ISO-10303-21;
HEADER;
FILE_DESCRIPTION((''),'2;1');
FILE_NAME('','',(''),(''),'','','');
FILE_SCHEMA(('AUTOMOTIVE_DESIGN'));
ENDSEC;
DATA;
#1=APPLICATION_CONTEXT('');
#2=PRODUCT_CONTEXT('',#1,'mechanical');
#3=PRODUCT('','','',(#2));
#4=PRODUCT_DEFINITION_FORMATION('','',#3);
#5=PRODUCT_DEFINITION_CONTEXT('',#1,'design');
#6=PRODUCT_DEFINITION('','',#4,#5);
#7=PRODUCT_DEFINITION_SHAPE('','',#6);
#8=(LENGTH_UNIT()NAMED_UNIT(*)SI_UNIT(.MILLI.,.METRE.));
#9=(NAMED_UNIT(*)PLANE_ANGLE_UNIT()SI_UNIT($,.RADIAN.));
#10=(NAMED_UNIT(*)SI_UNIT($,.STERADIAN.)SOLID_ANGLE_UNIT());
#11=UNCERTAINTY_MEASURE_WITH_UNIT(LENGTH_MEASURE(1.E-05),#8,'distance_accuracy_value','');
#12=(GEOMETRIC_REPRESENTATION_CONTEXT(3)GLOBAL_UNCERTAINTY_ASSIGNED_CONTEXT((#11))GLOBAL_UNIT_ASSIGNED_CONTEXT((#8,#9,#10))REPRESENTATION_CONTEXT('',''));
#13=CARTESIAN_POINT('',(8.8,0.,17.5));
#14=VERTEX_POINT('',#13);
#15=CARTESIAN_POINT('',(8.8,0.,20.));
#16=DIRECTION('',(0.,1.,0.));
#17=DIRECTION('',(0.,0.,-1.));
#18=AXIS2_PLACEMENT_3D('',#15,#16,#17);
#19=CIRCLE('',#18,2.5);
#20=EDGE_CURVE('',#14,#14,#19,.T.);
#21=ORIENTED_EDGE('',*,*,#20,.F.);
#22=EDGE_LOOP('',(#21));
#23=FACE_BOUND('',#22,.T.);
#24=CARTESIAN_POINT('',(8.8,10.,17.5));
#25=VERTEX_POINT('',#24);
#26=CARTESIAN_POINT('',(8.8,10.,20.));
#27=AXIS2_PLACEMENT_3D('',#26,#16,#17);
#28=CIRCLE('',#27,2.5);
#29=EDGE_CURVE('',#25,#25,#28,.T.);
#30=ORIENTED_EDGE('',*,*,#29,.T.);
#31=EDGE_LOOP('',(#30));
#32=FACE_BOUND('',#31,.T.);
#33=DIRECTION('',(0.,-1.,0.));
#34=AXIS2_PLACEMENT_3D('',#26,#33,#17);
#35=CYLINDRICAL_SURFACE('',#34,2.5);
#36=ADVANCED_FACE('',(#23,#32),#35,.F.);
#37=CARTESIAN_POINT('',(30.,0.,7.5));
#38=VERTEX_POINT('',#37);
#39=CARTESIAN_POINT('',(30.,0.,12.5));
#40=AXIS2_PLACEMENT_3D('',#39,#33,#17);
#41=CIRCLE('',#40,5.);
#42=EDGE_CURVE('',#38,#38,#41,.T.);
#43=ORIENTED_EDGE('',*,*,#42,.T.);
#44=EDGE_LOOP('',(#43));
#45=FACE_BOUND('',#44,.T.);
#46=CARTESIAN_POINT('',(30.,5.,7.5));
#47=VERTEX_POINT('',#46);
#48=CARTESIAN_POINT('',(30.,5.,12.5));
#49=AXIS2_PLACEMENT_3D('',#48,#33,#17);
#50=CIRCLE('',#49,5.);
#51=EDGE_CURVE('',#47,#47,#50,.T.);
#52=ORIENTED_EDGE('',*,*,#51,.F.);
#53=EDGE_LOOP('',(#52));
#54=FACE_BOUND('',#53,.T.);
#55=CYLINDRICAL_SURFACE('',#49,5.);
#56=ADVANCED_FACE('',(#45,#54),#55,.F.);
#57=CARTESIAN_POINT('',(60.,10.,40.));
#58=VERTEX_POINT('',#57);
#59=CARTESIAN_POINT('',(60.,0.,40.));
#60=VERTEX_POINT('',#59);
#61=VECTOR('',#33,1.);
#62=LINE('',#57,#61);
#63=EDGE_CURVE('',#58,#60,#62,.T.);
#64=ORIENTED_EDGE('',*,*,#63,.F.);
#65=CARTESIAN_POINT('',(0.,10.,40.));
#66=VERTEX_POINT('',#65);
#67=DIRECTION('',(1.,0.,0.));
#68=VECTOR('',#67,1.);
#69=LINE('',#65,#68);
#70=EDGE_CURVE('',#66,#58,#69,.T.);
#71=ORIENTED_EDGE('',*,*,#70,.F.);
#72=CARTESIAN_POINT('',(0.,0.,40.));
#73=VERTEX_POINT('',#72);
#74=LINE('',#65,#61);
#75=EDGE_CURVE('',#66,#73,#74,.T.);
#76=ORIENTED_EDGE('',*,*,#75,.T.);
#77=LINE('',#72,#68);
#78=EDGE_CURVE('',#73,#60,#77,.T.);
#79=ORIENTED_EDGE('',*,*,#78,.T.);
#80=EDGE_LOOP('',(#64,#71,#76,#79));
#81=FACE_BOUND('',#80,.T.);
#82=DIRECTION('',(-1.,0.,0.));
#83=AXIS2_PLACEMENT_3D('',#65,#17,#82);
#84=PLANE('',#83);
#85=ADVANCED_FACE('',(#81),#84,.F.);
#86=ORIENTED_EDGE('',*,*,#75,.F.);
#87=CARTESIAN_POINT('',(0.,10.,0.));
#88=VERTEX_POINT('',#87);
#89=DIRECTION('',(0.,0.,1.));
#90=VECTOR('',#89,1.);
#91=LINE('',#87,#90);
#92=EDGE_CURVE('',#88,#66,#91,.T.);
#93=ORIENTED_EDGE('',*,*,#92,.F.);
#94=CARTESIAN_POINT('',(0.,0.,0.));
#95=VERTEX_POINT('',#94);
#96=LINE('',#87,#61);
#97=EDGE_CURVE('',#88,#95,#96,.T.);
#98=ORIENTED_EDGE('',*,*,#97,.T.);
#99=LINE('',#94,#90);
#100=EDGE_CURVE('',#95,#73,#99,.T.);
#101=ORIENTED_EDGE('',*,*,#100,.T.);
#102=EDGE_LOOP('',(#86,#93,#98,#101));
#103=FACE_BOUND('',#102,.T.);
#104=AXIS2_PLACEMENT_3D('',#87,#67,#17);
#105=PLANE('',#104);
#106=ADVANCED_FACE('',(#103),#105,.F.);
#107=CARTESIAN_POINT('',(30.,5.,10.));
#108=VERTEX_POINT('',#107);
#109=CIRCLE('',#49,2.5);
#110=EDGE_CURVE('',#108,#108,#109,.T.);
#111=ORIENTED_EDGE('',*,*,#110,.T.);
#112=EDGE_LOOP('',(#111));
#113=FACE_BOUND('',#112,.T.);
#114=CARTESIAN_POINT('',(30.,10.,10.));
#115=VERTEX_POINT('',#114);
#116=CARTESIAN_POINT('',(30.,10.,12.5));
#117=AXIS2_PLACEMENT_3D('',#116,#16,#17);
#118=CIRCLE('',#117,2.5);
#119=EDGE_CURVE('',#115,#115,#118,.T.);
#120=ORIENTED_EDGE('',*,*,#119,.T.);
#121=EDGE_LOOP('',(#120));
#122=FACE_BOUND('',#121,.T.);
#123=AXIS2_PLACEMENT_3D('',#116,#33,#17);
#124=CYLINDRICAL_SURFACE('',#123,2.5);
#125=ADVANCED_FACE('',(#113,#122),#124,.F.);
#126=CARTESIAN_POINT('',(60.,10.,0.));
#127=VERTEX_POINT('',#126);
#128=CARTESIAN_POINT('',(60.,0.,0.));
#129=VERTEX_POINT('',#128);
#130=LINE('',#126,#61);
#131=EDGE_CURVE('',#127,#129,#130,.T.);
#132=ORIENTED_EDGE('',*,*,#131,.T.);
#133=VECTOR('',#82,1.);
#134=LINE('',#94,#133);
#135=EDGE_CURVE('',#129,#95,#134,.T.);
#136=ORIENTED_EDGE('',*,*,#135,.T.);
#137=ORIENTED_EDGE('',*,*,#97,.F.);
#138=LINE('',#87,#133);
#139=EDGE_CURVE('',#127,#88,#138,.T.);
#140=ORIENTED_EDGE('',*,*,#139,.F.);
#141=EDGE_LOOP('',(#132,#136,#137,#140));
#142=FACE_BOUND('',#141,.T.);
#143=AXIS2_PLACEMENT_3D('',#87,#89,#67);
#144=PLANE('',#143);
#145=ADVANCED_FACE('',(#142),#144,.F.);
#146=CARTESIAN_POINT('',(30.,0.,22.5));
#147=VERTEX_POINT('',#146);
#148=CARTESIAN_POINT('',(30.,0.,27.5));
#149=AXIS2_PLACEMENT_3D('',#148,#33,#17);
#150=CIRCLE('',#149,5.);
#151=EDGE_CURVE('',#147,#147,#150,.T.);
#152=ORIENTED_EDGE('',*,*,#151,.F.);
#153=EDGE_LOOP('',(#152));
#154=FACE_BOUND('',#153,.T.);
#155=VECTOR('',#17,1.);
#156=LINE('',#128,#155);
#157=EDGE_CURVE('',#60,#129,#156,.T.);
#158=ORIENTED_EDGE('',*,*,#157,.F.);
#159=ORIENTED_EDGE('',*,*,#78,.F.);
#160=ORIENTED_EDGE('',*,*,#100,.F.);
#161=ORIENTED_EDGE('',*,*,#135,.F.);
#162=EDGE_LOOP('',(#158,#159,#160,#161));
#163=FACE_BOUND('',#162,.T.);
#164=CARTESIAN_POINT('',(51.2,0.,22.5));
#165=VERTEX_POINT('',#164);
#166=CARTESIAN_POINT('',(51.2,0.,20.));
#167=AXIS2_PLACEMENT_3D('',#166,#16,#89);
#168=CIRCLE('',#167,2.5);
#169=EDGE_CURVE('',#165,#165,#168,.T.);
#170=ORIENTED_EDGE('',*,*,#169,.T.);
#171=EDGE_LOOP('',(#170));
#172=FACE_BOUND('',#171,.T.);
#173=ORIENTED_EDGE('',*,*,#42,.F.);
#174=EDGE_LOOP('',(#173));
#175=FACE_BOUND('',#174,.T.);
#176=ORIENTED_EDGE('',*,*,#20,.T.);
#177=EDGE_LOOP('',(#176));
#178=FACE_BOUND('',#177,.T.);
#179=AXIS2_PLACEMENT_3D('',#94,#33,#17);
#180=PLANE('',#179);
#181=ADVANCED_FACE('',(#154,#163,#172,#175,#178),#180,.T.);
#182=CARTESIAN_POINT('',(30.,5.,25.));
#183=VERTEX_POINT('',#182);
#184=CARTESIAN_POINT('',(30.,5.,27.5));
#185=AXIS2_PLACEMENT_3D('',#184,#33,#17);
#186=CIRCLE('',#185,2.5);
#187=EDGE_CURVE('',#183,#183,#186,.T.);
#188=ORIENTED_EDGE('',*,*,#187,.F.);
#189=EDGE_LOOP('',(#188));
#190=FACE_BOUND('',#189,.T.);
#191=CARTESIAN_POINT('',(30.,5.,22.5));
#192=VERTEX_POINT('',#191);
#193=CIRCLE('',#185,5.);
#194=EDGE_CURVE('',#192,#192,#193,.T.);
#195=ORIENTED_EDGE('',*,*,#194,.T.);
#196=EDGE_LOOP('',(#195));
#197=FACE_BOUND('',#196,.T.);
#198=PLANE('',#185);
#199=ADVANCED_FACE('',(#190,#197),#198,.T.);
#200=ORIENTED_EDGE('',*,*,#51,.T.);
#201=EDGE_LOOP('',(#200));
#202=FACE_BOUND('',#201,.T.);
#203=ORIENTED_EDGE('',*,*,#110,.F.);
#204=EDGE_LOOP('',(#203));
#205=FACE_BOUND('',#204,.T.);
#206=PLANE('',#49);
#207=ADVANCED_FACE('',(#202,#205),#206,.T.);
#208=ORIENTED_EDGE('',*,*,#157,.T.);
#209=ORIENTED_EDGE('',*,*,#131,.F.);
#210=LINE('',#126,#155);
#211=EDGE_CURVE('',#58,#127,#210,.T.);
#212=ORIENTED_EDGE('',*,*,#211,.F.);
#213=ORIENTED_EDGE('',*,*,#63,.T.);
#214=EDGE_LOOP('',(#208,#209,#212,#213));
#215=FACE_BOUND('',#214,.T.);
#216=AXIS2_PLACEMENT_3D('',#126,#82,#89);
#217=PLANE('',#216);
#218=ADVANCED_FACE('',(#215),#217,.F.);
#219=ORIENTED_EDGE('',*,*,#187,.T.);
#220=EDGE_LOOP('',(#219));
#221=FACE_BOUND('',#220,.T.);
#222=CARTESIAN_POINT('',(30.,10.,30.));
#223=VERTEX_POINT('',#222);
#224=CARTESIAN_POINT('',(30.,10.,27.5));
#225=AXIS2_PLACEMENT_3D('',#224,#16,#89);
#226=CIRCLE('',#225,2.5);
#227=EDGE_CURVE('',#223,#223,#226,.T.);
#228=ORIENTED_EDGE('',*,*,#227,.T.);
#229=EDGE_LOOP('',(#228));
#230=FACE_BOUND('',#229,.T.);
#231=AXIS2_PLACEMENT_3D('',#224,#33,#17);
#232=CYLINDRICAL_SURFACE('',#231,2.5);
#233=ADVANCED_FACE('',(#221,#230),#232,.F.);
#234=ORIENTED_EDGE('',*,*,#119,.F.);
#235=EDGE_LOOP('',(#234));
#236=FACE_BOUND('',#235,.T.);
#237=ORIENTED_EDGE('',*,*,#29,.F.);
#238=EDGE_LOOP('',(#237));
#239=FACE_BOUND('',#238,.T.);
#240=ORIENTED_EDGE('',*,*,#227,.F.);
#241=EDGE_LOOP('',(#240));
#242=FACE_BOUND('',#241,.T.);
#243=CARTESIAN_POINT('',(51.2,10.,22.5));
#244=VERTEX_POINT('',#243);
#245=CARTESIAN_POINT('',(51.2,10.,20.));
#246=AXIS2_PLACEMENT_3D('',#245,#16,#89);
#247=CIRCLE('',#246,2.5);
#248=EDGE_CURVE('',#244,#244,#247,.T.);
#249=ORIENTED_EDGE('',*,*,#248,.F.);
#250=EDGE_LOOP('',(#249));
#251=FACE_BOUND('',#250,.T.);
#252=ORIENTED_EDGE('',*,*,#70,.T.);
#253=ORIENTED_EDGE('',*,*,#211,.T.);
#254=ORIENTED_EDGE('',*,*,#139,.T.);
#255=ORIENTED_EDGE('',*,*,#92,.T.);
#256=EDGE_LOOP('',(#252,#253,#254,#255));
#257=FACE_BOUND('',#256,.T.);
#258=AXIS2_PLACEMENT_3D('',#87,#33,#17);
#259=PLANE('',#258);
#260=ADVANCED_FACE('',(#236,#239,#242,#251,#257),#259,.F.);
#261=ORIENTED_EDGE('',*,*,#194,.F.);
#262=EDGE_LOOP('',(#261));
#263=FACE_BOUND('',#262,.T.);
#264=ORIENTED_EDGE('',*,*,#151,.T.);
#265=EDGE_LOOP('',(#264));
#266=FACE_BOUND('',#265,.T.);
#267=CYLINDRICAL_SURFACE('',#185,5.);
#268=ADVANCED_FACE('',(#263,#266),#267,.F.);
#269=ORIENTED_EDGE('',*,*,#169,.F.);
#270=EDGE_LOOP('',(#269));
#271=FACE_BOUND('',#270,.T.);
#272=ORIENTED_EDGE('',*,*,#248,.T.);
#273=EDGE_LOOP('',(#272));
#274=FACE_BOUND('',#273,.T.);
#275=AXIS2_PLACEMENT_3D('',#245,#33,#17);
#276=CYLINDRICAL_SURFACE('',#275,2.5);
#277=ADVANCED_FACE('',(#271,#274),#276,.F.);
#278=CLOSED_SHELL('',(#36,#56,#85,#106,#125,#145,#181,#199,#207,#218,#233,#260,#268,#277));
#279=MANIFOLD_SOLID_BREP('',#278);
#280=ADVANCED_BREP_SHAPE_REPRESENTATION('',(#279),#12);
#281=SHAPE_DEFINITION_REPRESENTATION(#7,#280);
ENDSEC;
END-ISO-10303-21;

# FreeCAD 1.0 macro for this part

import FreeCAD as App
import Part
import Sketcher
Q = App.Units.Quantity

doc = App.newDocument("Part")
body = doc.addObject("PartDesign::Body", "Body")

# Sketch on XZ plane
sketch1 = doc.addObject("Sketcher::SketchObject", "Sketch")
body.addObject(sketch1)
sketch1.AttachmentSupport = (doc.XZ_Plane, [""])
sketch1.MapMode = "FlatFace"
sketch1.addGeometry([
    Part.LineSegment(App.Vector(0, 0, 0), App.Vector(0, 40, 0)),  # 0
    Part.LineSegment(App.Vector(0, 40, 0), App.Vector(60, 40, 0)),  # 1
    Part.LineSegment(App.Vector(60, 40, 0), App.Vector(60, 0, 0)),  # 2
    Part.LineSegment(App.Vector(60, 0, 0), App.Vector(0, 0, 0)),  # 3
    Part.Circle(App.Vector(30, 27.5, 0), App.Vector(0, 0, 1), 2.5),  # 4
    Part.Circle(App.Vector(8.8, 20, 0), App.Vector(0, 0, 1), 2.5),  # 5
    Part.Circle(App.Vector(30, 12.5, 0), App.Vector(0, 0, 1), 2.5),  # 6
    Part.Circle(App.Vector(51.2, 20, 0), App.Vector(0, 0, 1), 2.5),  # 7
], False)
sketch1.addConstraint([
    Sketcher.Constraint("Coincident", 0, 2, 1, 1),
    Sketcher.Constraint("Coincident", 1, 2, 2, 1),
    Sketcher.Constraint("Coincident", 2, 2, 3, 1),
    Sketcher.Constraint("Coincident", 3, 2, 0, 1),
    Sketcher.Constraint("Vertical", 0),
    Sketcher.Constraint("Horizontal", 1),
    Sketcher.Constraint("Vertical", 2),
    Sketcher.Constraint("Horizontal", 3),
    Sketcher.Constraint("Coincident", 3, 2, -1, 1),
    Sketcher.Constraint("Equal", 4, 5),
    Sketcher.Constraint("Equal", 5, 6),
    Sketcher.Constraint("Equal", 6, 7),
    Sketcher.Constraint("Horizontal", 5, 3, 7, 3),
    Sketcher.Constraint("Vertical", 4, 3, 6, 3),
    Sketcher.Constraint("Diameter", 4, Q("5 mm")),
    Sketcher.Constraint("DistanceX", 1, 1, 1, 2, Q("60 mm")),
    Sketcher.Constraint("DistanceY", 0, 1, 0, 2, Q("40 mm")),
    Sketcher.Constraint("DistanceX", -1, 1, 4, 3, Q("30 mm")),
    Sketcher.Constraint("DistanceY", -1, 1, 5, 3, Q("20 mm")),
    Sketcher.Constraint("DistanceY", 6, 3, 4, 3, Q("15 mm")),
    Sketcher.Constraint("DistanceY", -1, 1, 4, 3, Q("27.5 mm")),
    Sketcher.Constraint("DistanceX", -1, 1, 5, 3, Q("8.8 mm")),
    Sketcher.Constraint("DistanceX", -1, 1, 7, 3, Q("51.2 mm")),
])
pad1 = doc.addObject("PartDesign::Pad", "Pad")
body.addObject(pad1)
pad1.Profile = sketch1
pad1.Length = 10
pad1.Reversed = True

# Sketch on XZ plane
sketch2 = doc.addObject("Sketcher::SketchObject", "Sketch001")
body.addObject(sketch2)
sketch2.AttachmentSupport = (doc.XZ_Plane, [""])
sketch2.MapMode = "FlatFace"
sketch2.addGeometry([
    Part.Circle(App.Vector(30, 28, 0), App.Vector(0, 0, 1), 5),
    Part.Circle(App.Vector(30, 12, 0), App.Vector(0, 0, 1), 5),
], False)
sketch2.addConstraint([
    Sketcher.Constraint("Equal", 0, 1),
    Sketcher.Constraint("Vertical", 0, 3, 1, 3),
    Sketcher.Constraint("Diameter", 0, Q("10 mm")),
    Sketcher.Constraint("DistanceX", -1, 1, 0, 3, Q("30 mm")),
    Sketcher.Constraint("DistanceY", 1, 3, 0, 3, Q("15 mm")),
    Sketcher.Constraint("DistanceY", -1, 1, 0, 3, Q("27.5 mm")),
])
pocket1 = doc.addObject("PartDesign::Pocket", "Pocket")
body.addObject(pocket1)
pocket1.Profile = sketch2
pocket1.Length = 5

doc.recompute()
